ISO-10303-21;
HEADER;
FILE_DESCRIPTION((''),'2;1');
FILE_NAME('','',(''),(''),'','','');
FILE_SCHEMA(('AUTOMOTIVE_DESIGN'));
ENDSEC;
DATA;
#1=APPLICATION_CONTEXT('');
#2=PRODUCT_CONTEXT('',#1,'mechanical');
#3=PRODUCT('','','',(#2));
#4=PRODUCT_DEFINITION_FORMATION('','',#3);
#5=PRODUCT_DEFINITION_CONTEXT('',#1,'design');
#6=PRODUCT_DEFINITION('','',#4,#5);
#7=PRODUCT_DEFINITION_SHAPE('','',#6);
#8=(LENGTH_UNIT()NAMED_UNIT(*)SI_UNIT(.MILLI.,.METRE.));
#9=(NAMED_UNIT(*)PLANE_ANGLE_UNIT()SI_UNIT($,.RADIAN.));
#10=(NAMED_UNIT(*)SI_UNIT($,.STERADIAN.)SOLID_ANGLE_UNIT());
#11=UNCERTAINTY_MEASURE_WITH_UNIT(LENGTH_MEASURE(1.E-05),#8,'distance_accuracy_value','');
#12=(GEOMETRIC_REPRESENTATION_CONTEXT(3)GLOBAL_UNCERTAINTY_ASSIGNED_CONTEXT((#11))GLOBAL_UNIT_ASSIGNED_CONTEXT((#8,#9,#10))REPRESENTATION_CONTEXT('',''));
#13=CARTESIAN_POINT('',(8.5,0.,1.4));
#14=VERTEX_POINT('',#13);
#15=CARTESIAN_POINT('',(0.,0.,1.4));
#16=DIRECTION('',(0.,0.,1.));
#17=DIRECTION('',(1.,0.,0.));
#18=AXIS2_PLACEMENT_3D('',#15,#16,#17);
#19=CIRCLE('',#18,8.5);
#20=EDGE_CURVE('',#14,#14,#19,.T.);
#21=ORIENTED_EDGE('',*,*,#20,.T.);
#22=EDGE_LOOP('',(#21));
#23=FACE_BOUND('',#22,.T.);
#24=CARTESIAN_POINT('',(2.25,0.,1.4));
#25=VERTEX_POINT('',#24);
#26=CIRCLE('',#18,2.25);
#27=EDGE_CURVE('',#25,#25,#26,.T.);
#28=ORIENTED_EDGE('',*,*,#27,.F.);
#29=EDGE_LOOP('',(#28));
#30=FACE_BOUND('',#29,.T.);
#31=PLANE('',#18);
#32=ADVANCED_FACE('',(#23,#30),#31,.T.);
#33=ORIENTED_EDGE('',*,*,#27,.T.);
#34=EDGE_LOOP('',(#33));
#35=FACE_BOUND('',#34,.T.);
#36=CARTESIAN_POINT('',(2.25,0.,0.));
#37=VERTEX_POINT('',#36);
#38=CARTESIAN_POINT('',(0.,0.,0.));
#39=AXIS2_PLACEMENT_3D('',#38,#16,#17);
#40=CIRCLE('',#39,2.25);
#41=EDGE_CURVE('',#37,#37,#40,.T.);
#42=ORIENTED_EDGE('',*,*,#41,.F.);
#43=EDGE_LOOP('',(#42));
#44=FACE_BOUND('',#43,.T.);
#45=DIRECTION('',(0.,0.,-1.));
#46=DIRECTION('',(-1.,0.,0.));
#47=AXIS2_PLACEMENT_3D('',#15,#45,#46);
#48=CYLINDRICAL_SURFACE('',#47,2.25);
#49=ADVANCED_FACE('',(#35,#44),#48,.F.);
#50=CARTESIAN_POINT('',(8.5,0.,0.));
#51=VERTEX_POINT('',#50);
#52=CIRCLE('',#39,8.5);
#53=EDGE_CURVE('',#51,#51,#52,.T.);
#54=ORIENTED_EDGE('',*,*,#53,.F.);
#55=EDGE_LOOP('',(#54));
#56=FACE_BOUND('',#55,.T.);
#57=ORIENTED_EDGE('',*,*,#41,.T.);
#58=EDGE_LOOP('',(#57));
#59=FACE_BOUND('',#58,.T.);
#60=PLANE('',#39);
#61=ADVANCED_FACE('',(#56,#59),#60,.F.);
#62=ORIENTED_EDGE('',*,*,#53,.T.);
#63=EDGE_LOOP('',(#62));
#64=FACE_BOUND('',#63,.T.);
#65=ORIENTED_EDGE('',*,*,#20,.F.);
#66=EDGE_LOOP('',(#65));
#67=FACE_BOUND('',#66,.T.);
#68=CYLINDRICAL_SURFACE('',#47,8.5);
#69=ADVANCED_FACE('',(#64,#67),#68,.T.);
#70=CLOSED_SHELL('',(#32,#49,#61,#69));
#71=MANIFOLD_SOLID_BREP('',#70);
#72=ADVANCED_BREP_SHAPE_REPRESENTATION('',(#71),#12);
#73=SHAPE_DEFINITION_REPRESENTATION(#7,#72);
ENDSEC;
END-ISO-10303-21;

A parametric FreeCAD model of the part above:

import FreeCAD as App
import Part
import Sketcher

V = App.Vector
Q = App.Units.Quantity

doc = App.newDocument("Part")
params = doc.addObject("Spreadsheet::Sheet", "Params")
for row, (alias, value) in enumerate([
    ("sketch1_diameter", "17 mm"),
    ("sketch1_diameter2", "4.5 mm"),
    ("pad1_length", "1.4 mm"),
], start=1):
    params.set(f"A{row}", alias)
    params.set(f"B{row}", "=" + value)
    params.setAlias(f"B{row}", alias)

body = doc.addObject("PartDesign::Body", "Body")

# Sketch on XY plane
sketch1 = body.newObject("Sketcher::SketchObject", "Sketch")
sketch1.AttachmentSupport = (doc.getObject("XY_Plane"), [""])
sketch1.MapMode = "FlatFace"
sketch1.addGeometry(Part.Circle(V(0, 0, 0), V(0, 0, 1), 8.5), False)
sketch1.addGeometry(Part.Circle(V(0, 0, 0), V(0, 0, 1), 2.2), False)
sketch1.addConstraint(Sketcher.Constraint("Coincident", 0, 3, -1, 1))
sketch1.addConstraint(Sketcher.Constraint("Coincident", 1, 3, -1, 1))
sketch1.addConstraint(Sketcher.Constraint("Diameter", 0, Q("17 mm")))
sketch1.addConstraint(Sketcher.Constraint("Diameter", 1, Q("4.5 mm")))
sketch1.setExpression("Constraints[2]", "Params.sketch1_diameter")
sketch1.setExpression("Constraints[3]", "Params.sketch1_diameter2")
pad1 = body.newObject("PartDesign::Pad", "Pad")
pad1.Profile = sketch1
pad1.setExpression("Length", "Params.pad1_length")

doc.recompute()
